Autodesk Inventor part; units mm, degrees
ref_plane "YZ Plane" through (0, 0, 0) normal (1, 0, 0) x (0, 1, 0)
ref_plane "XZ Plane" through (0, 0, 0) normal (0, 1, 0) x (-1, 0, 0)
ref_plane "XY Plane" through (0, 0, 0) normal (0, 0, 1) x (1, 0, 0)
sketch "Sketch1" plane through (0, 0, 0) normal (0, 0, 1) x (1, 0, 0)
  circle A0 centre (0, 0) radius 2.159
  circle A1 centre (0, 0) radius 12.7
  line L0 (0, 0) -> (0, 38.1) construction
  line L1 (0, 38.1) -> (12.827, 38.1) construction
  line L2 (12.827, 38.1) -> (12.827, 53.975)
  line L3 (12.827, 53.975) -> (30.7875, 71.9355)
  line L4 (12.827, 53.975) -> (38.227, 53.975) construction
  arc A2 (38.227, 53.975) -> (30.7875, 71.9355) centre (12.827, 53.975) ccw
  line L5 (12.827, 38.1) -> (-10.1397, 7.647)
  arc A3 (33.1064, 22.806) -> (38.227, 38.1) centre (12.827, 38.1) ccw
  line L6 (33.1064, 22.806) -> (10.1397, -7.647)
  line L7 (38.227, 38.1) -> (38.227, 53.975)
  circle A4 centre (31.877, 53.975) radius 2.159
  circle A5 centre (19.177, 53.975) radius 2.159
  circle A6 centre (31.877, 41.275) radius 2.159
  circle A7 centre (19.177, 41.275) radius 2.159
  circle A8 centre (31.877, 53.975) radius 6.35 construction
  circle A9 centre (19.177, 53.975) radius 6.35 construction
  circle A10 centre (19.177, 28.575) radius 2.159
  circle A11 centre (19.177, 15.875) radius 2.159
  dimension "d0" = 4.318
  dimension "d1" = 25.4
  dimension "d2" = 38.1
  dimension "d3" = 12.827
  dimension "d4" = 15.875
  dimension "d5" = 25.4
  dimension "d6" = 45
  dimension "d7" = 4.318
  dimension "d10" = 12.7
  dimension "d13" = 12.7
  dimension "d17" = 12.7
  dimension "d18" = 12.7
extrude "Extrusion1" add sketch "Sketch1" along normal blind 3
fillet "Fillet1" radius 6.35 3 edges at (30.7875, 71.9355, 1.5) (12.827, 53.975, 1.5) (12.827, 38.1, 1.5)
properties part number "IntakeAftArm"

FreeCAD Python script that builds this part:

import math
import FreeCAD as App
import Part
import Sketcher
from FreeCAD import Vector
Q = App.Units.Quantity


def edges_at(feature, points):
    """Names of the edges that pass closest to the given points."""
    edges = feature.Shape.Edges
    near = lambda p: min(range(len(edges)), key=lambda i: edges[i].distToShape(Part.Vertex(*p))[0])
    return sorted({f"Edge{near(p) + 1}" for p in points})

doc = App.newDocument("Part")
body = doc.addObject("PartDesign::Body", "Body")

# Sketch on XY plane
sketch1 = body.newObject("Sketcher::SketchObject", "Sketch")
sketch1.AttachmentSupport = (doc.getObject("XY_Plane"), [""])
sketch1.MapMode = "FlatFace"
sketch1.addGeometry(Part.ArcOfCircle(Part.Circle(Vector(0, 0, 0), Vector(0, 0, 1), 12.7), math.radians(143), math.radians(323)), False)
sketch1.addGeometry(Part.LineSegment(Vector(10.1, -7.6, 0), Vector(33.1, 22.8, 0)), False)
sketch1.addGeometry(Part.ArcOfCircle(Part.Circle(Vector(12.8, 38.1, 0), Vector(0, 0, 1), 25.4), math.radians(-37), math.radians(0)), False)
sketch1.addGeometry(Part.LineSegment(Vector(38.2, 38.1, 0), Vector(38.2, 54, 0)), False)
sketch1.addGeometry(Part.ArcOfCircle(Part.Circle(Vector(12.8, 54, 0), Vector(0, 0, 1), 25.4), math.radians(0), math.radians(45)), False)
sketch1.addGeometry(Part.LineSegment(Vector(30.8, 71.9, 0), Vector(12.8, 54, 0)), False)
sketch1.addGeometry(Part.LineSegment(Vector(12.8, 54, 0), Vector(12.8, 38.1, 0)), False)
sketch1.addGeometry(Part.LineSegment(Vector(12.8, 38.1, 0), Vector(-10.1, 7.6, 0)), False)
sketch1.addGeometry(Part.Circle(Vector(0, 0, 0), Vector(0, 0, 1), 2.2), False)
sketch1.addGeometry(Part.Circle(Vector(19.2, 54, 0), Vector(0, 0, 1), 2.2), False)
sketch1.addGeometry(Part.Circle(Vector(31.9, 54, 0), Vector(0, 0, 1), 2.2), False)
sketch1.addGeometry(Part.Circle(Vector(19.2, 15.9, 0), Vector(0, 0, 1), 2.2), False)
sketch1.addGeometry(Part.Circle(Vector(19.2, 28.6, 0), Vector(0, 0, 1), 2.2), False)
sketch1.addGeometry(Part.Circle(Vector(19.2, 41.3, 0), Vector(0, 0, 1), 2.2), False)
sketch1.addGeometry(Part.Circle(Vector(31.9, 41.3, 0), Vector(0, 0, 1), 2.2), False)
sketch1.addConstraint(Sketcher.Constraint("Tangent", 0, 2, 1, 1))
sketch1.addConstraint(Sketcher.Constraint("Tangent", 1, 2, 2, 1))
sketch1.addConstraint(Sketcher.Constraint("Tangent", 2, 2, 3, 1))
sketch1.addConstraint(Sketcher.Constraint("Tangent", 3, 2, 4, 1))
sketch1.addConstraint(Sketcher.Constraint("Coincident", 4, 2, 5, 1))
sketch1.addConstraint(Sketcher.Constraint("Coincident", 5, 2, 6, 1))
sketch1.addConstraint(Sketcher.Constraint("Coincident", 6, 2, 7, 1))
sketch1.addConstraint(Sketcher.Constraint("Tangent", 7, 2, 0, 1))
sketch1.addConstraint(Sketcher.Constraint("Vertical", 3))
sketch1.addConstraint(Sketcher.Constraint("Vertical", 6))
sketch1.addConstraint(Sketcher.Constraint("Coincident", 0, 3, -1, 1))
sketch1.addConstraint(Sketcher.Constraint("Coincident", 8, 3, -1, 1))
sketch1.addConstraint(Sketcher.Constraint("Coincident", 5, 2, 4, 3))
sketch1.addConstraint(Sketcher.Constraint("Coincident", 6, 2, 2, 3))
sketch1.addConstraint(Sketcher.Constraint("Equal", 8, 9))
sketch1.addConstraint(Sketcher.Constraint("Equal", 9, 10))
sketch1.addConstraint(Sketcher.Constraint("Equal", 10, 11))
sketch1.addConstraint(Sketcher.Constraint("Equal", 11, 12))
sketch1.addConstraint(Sketcher.Constraint("Equal", 12, 13))
sketch1.addConstraint(Sketcher.Constraint("Equal", 13, 14))
sketch1.addConstraint(Sketcher.Constraint("Parallel", 1, 7))
sketch1.addConstraint(Sketcher.Constraint("Horizontal", 4, 3, 9, 3))
sketch1.addConstraint(Sketcher.Constraint("Horizontal", 9, 3, 10, 3))
sketch1.addConstraint(Sketcher.Constraint("Horizontal", 13, 3, 14, 3))
sketch1.addConstraint(Sketcher.Constraint("Vertical", 9, 3, 11, 3))
sketch1.addConstraint(Sketcher.Constraint("Vertical", 11, 3, 12, 3))
sketch1.addConstraint(Sketcher.Constraint("Vertical", 12, 3, 13, 3))
sketch1.addConstraint(Sketcher.Constraint("Vertical", 10, 3, 14, 3))
sketch1.addConstraint(Sketcher.Constraint("Radius", 2, Q("1 in")))
sketch1.addConstraint(Sketcher.Constraint("Diameter", 8, Q("0.17 in")))
sketch1.addConstraint(Sketcher.Constraint("DistanceY", 12, 3, 9, 3, Q("1 in")))
sketch1.addConstraint(Sketcher.Constraint("DistanceY", -1, 1, 2, 3, Q("1.5 in")))
sketch1.addConstraint(Sketcher.Constraint("DistanceX", 9, 3, 10, 3, Q("0.5 in")))
sketch1.addConstraint(Sketcher.Constraint("DistanceY", 11, 3, 9, 3, Q("1.5 in")))
sketch1.addConstraint(Sketcher.Constraint("DistanceY", 12, 3, 13, 3, Q("0.5 in")))
sketch1.addConstraint(Sketcher.Constraint("DistanceY", 3, 1, 3, 2, Q("0.625 in")))
sketch1.addConstraint(Sketcher.Constraint("DistanceX", -1, 1, 2, 3, Q("0.505 in")))
sketch1.addConstraint(Sketcher.Constraint("Angle", 5, Q("-135 deg")))
sketch1.addConstraint(Sketcher.Constraint("DistanceX", 4, 3, 9, 3, Q("0.25 in")))
pad1 = body.newObject("PartDesign::Pad", "Pad")
pad1.Profile = sketch1
pad1.Length = Q("0.1181102 in")
doc.recompute()

fillet = body.newObject("PartDesign::Fillet", "Fillet")
fillet.Base = (pad1, edges_at(pad1, [(30.788, 71.936, 1.5), (12.827, 53.975, 1.5), (12.827, 38.1, 1.5)]))
fillet.Radius = Q("0.25 in")

doc.recompute()
